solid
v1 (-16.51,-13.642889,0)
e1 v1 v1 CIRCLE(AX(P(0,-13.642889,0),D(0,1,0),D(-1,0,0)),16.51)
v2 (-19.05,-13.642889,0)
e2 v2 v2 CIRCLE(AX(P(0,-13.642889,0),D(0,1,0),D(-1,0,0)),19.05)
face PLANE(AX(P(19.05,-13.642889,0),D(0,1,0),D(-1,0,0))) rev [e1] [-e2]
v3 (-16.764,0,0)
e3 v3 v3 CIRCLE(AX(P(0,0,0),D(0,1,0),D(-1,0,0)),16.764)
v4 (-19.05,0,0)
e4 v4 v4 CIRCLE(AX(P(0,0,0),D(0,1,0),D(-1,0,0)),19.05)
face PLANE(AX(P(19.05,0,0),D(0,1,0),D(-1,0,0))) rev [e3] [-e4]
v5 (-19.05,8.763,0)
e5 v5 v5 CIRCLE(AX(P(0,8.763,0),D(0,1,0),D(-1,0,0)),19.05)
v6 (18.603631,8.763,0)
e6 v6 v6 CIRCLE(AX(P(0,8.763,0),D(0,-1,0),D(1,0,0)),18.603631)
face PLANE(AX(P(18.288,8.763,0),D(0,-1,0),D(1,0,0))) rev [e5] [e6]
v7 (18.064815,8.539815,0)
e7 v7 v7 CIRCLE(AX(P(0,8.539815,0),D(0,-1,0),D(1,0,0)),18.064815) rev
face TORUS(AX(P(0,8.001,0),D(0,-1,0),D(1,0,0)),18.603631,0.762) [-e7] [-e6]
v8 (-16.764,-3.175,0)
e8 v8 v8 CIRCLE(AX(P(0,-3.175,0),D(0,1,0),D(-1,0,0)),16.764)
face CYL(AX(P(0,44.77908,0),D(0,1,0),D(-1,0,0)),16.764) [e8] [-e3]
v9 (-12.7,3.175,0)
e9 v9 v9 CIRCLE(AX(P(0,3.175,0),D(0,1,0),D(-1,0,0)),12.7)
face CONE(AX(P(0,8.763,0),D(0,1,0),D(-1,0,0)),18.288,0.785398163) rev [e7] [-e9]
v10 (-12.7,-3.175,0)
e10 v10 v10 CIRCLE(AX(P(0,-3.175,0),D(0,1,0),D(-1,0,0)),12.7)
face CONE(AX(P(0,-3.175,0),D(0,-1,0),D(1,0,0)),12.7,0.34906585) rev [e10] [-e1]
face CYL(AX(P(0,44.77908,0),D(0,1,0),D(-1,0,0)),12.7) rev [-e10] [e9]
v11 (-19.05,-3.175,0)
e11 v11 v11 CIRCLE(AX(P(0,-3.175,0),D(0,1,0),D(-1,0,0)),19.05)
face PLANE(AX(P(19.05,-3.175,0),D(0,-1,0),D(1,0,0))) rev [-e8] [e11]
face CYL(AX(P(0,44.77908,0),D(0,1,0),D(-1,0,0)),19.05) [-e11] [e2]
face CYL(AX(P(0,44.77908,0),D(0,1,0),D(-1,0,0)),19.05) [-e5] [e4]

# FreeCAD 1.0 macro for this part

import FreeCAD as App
import Part
import Sketcher

V = App.Vector
Q = App.Units.Quantity


def edges_at(feature, points):
    """Names of the edges that pass closest to the given points."""
    edges = feature.Shape.Edges
    near = lambda p: min(range(len(edges)), key=lambda i: edges[i].distToShape(Part.Vertex(*p))[0])
    return sorted({f"Edge{near(p) + 1}" for p in points})


def add_polygon(sketch, points):
    """Adds a closed chain of lines whose ends are joined by coincident constraints."""
    first, n = sketch.GeometryCount, len(points)
    for a, b in zip(points, points[1:] + points[:1]):
        sketch.addGeometry(Part.LineSegment(App.Vector(*a, 0), App.Vector(*b, 0)), False)
    for i in range(n):
        sketch.addConstraint(Sketcher.Constraint("Coincident", first + i, 2, first + (i + 1) % n, 1))

doc = App.newDocument("Part")
body = doc.addObject("PartDesign::Body", "Body")

# Sketch on XY plane
sketch1 = body.newObject("Sketcher::SketchObject", "Sketch")
sketch1.AttachmentSupport = (doc.getObject("XY_Plane"), [""])
sketch1.MapMode = "FlatFace"
add_polygon(sketch1, [(12.7, 3.2), (12.7, -3.2), (16.5, -13.6), (19.1, -13.6), (19.1, -3.2), (16.8, -3.2), (16.8, 0), (19.1, 0), (19.1, 8.8), (18.3, 8.8)])  # lines 0-9
sketch1.addConstraint([
    Sketcher.Constraint("Vertical", 0),
    Sketcher.Constraint("Horizontal", 2),
    Sketcher.Constraint("Vertical", 3),
    Sketcher.Constraint("Horizontal", 4),
    Sketcher.Constraint("Vertical", 5),
    Sketcher.Constraint("Horizontal", 6),
    Sketcher.Constraint("Vertical", 7),
    Sketcher.Constraint("Horizontal", 8),
    Sketcher.Constraint("PointOnObject", 5, 2, -1),
    Sketcher.Constraint("Horizontal", 0, 2, 3, 2),
    Sketcher.Constraint("Vertical", 3, 2, 6, 2),
    Sketcher.Constraint("DistanceX", 2, 1, 2, 2, Q("0.1 in")),
    Sketcher.Constraint("Angle", 1, Q("-70 deg")),
    Sketcher.Constraint("Angle", 9, Q("-135 deg")),
    Sketcher.Constraint("DistanceX", 4, 2, 4, 1, Q("0.09 in")),
    Sketcher.Constraint("DistanceX", 8, 2, 8, 1, Q("0.03 in")),
    Sketcher.Constraint("DistanceY", 0, 2, 0, 1, Q("0.25 in")),
    Sketcher.Constraint("DistanceX", -1, 1, 0, 2, Q("0.5 in")),
    Sketcher.Constraint("DistanceY", 5, 1, 5, 2, Q("0.125 in")),
    Sketcher.Constraint("DistanceY", 7, 1, 7, 2, Q("0.345 in")),
])
revolution = body.newObject("PartDesign::Revolution", "Revolution")
revolution.Profile = sketch1
revolution.ReferenceAxis = (sketch1, ["V_Axis"])
revolution.Angle = 360
doc.recompute()

fillet = body.newObject("PartDesign::Fillet", "Fillet")
fillet.Base = (revolution, edges_at(revolution, [(18.288, 8.763, 0)]))
fillet.Radius = Q("0.03 in")

doc.recompute()
